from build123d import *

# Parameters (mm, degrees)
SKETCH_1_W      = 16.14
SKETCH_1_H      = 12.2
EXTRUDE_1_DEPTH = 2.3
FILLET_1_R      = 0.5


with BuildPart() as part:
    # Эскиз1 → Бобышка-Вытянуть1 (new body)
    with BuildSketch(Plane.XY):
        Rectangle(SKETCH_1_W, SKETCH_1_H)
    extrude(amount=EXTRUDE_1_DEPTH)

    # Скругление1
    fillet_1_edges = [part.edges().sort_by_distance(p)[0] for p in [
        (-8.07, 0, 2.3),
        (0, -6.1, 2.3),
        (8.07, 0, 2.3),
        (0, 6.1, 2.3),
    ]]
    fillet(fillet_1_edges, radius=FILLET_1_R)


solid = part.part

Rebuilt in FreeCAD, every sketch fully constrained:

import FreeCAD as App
import Part
import Sketcher
from FreeCAD import Vector
Q = App.Units.Quantity


def edges_at(feature, points):
    """Names of the edges that pass closest to the given points."""
    edges = feature.Shape.Edges
    near = lambda p: min(range(len(edges)), key=lambda i: edges[i].distToShape(Part.Vertex(*p))[0])
    return sorted({f"Edge{near(p) + 1}" for p in points})


def add_polygon(sketch, points):
    """Adds a closed chain of lines whose ends are joined by coincident constraints."""
    first, n = sketch.GeometryCount, len(points)
    for a, b in zip(points, points[1:] + points[:1]):
        sketch.addGeometry(Part.LineSegment(App.Vector(*a, 0), App.Vector(*b, 0)), False)
    for i in range(n):
        sketch.addConstraint(Sketcher.Constraint("Coincident", first + i, 2, first + (i + 1) % n, 1))

doc = App.newDocument("Part")
body = doc.addObject("PartDesign::Body", "Body")

# Sketch on XY plane
sketch1 = body.newObject("Sketcher::SketchObject", "Sketch")
sketch1.AttachmentSupport = (doc.getObject("XY_Plane"), [""])
sketch1.MapMode = "FlatFace"
add_polygon(sketch1, [(-8, 6), (-8, -6), (8, -6), (8, 6)])  # lines 0-3
sketch1.addConstraint([
    Sketcher.Constraint("Vertical", 0),
    Sketcher.Constraint("Horizontal", 1),
    Sketcher.Constraint("Vertical", 2),
    Sketcher.Constraint("Horizontal", 3),
    Sketcher.Constraint("Symmetric", 0, 2, 2, 2, -1, 1),
    Sketcher.Constraint("DistanceY", 0, 2, 0, 1, Q("12.2 mm")),
    Sketcher.Constraint("DistanceX", 1, 1, 1, 2, Q("16.14 mm")),
])
pad1 = body.newObject("PartDesign::Pad", "Pad")
pad1.Profile = sketch1
pad1.Length = 2.3
doc.recompute()

fillet = body.newObject("PartDesign::Fillet", "Fillet")
fillet.Base = (pad1, edges_at(pad1, [
    (-8.07, 0, 2.3),
    (0, -6.1, 2.3),
    (8.07, 0, 2.3),
    (0, 6.1, 2.3),
]))
fillet.Radius = 0.5

doc.recompute()
